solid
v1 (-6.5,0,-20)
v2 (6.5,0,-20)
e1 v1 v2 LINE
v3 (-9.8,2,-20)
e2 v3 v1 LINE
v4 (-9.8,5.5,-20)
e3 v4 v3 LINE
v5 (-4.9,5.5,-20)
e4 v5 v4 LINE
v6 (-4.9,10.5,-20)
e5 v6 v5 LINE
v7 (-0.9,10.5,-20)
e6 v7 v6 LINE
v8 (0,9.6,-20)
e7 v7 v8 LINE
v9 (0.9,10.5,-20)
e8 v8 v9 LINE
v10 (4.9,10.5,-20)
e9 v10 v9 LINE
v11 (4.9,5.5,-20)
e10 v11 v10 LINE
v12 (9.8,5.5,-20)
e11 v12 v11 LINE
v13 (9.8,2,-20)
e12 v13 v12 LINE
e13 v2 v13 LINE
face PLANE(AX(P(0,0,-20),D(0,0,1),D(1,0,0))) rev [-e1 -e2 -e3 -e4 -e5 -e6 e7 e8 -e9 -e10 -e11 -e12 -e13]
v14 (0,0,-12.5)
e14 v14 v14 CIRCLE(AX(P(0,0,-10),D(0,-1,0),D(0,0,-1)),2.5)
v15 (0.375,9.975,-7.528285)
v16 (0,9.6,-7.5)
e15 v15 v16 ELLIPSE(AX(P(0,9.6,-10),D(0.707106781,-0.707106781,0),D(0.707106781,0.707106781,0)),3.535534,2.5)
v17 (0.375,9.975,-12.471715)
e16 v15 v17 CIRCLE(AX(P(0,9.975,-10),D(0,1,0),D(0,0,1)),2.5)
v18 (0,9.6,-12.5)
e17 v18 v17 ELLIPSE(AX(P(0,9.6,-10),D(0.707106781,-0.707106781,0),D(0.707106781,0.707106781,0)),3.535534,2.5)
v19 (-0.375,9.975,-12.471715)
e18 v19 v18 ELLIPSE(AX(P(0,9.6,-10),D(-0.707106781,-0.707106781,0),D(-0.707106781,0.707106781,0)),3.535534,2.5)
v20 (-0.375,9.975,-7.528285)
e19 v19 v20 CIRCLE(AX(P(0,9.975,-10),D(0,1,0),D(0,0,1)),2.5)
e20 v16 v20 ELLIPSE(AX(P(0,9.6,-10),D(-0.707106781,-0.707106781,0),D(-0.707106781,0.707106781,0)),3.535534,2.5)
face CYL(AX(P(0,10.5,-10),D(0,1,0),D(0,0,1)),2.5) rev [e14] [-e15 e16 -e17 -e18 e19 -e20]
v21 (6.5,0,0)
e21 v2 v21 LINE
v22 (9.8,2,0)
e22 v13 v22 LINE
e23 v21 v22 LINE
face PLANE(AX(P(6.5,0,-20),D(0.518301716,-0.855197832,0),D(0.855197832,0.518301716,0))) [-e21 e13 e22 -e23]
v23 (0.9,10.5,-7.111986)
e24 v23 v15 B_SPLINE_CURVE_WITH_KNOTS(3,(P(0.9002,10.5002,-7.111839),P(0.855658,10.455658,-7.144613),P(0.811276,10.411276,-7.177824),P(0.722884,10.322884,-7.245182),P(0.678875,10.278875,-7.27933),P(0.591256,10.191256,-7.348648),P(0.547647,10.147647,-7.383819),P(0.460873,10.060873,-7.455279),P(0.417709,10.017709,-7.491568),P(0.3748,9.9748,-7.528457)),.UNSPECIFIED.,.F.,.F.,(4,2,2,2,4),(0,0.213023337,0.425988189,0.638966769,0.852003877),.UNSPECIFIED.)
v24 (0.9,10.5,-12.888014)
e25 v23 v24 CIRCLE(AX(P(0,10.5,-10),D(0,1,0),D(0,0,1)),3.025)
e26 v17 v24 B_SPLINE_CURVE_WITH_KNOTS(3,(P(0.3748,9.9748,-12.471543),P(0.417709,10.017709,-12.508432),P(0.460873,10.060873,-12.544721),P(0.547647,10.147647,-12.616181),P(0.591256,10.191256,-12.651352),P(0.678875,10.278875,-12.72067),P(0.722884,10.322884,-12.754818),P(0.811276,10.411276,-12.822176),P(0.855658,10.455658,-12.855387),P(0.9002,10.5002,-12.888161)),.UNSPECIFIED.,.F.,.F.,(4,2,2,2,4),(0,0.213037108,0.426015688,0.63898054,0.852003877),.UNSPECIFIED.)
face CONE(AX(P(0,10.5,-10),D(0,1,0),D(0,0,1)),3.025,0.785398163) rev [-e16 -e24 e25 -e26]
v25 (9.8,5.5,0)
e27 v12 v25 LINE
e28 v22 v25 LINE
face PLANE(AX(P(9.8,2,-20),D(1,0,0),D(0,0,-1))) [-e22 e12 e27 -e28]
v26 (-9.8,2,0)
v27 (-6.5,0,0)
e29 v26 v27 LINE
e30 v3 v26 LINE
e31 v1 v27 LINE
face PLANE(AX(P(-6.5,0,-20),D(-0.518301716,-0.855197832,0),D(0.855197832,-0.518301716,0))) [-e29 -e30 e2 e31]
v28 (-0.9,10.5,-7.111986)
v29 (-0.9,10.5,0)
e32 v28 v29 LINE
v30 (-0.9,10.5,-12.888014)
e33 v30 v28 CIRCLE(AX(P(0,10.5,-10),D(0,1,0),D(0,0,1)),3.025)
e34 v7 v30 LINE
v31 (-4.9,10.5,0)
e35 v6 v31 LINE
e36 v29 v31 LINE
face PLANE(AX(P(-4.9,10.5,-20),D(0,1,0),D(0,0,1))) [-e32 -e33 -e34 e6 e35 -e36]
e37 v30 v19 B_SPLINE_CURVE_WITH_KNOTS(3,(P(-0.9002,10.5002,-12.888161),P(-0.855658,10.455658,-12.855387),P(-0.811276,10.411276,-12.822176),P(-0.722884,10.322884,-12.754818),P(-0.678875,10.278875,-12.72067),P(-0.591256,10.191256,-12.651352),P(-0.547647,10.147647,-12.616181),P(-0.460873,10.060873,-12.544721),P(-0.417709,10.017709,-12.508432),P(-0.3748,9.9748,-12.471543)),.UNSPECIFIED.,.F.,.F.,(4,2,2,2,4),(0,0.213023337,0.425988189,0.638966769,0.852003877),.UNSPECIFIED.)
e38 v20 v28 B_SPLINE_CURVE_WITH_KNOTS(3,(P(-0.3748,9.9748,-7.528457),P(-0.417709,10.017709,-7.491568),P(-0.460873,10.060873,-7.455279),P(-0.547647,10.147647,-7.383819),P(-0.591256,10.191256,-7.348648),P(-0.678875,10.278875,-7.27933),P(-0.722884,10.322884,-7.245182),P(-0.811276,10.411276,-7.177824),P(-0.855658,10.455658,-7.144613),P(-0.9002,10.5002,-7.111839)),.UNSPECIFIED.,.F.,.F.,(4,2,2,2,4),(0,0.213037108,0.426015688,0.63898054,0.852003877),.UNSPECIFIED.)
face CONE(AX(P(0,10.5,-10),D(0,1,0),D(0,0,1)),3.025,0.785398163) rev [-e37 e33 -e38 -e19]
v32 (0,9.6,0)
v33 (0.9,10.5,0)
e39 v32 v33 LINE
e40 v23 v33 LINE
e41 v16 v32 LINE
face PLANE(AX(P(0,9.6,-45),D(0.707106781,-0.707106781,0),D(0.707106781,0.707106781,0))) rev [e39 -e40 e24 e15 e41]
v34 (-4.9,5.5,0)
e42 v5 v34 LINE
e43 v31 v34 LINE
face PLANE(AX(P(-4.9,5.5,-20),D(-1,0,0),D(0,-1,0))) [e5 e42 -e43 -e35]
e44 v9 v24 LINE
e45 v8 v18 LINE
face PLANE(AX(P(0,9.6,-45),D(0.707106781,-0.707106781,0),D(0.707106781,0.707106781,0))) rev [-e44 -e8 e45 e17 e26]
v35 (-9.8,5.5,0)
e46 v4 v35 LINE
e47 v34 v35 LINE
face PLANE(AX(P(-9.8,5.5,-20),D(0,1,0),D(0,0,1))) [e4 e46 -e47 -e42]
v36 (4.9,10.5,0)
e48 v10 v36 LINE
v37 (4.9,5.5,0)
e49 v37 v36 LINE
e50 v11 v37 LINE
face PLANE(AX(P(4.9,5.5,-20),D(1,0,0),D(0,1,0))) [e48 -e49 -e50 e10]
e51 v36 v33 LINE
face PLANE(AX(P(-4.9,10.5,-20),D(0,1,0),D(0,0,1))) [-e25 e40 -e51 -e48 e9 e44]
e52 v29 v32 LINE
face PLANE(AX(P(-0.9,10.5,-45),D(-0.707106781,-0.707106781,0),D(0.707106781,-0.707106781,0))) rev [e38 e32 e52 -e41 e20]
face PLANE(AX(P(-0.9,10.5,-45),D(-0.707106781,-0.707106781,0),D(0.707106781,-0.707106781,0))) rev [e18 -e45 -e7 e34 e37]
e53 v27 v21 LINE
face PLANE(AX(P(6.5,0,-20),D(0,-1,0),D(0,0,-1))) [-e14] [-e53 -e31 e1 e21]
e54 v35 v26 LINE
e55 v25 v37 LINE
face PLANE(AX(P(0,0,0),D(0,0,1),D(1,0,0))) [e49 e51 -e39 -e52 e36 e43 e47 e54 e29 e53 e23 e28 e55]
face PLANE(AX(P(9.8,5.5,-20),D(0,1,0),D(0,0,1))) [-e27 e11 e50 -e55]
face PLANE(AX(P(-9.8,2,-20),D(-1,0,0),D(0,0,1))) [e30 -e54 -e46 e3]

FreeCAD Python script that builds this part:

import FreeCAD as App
import Part
import Sketcher

doc = App.newDocument("Part")
body = doc.addObject("PartDesign::Body", "Body")

sketch1 = doc.addObject("Sketcher::SketchObject", "Sketch")
body.addObject(sketch1)
sketch1.AttachmentSupport = (doc.XY_Plane, [""])
sketch1.MapMode = "FlatFace"
sketch1.addGeometry(Part.LineSegment(App.Vector(-6.5, 0, 0), App.Vector(6.5, 0, 0)), False)
sketch1.addGeometry(Part.LineSegment(App.Vector(6.5, 0, 0), App.Vector(9.8, 2, 0)), False)
sketch1.addGeometry(Part.LineSegment(App.Vector(9.8, 2, 0), App.Vector(9.8, 5.5, 0)), False)
sketch1.addGeometry(Part.LineSegment(App.Vector(9.8, 5.5, 0), App.Vector(4.9, 5.5, 0)), False)
sketch1.addGeometry(Part.LineSegment(App.Vector(4.9, 5.5, 0), App.Vector(4.9, 10.5, 0)), False)
sketch1.addGeometry(Part.LineSegment(App.Vector(4.9, 10.5, 0), App.Vector(-4.9, 10.5, 0)), False)
sketch1.addGeometry(Part.LineSegment(App.Vector(-4.9, 10.5, 0), App.Vector(-4.9, 5.5, 0)), False)
sketch1.addGeometry(Part.LineSegment(App.Vector(-4.9, 5.5, 0), App.Vector(-9.8, 5.5, 0)), False)
sketch1.addGeometry(Part.LineSegment(App.Vector(-9.8, 5.5, 0), App.Vector(-9.8, 2, 0)), False)
sketch1.addGeometry(Part.LineSegment(App.Vector(-9.8, 2, 0), App.Vector(-6.5, 0, 0)), False)
sketch1.addConstraint(Sketcher.Constraint("Coincident", 0, 2, 1, 1))
sketch1.addConstraint(Sketcher.Constraint("Coincident", 1, 2, 2, 1))
sketch1.addConstraint(Sketcher.Constraint("Coincident", 2, 2, 3, 1))
sketch1.addConstraint(Sketcher.Constraint("Coincident", 3, 2, 4, 1))
sketch1.addConstraint(Sketcher.Constraint("Coincident", 4, 2, 5, 1))
sketch1.addConstraint(Sketcher.Constraint("Coincident", 5, 2, 6, 1))
sketch1.addConstraint(Sketcher.Constraint("Coincident", 6, 2, 7, 1))
sketch1.addConstraint(Sketcher.Constraint("Coincident", 7, 2, 8, 1))
sketch1.addConstraint(Sketcher.Constraint("Coincident", 8, 2, 9, 1))
sketch1.addConstraint(Sketcher.Constraint("Coincident", 9, 2, 0, 1))
sketch1.addConstraint(Sketcher.Constraint("Horizontal", 0))
sketch1.addConstraint(Sketcher.Constraint("Vertical", 2))
sketch1.addConstraint(Sketcher.Constraint("Horizontal", 3))
sketch1.addConstraint(Sketcher.Constraint("Vertical", 4))
sketch1.addConstraint(Sketcher.Constraint("Horizontal", 5))
sketch1.addConstraint(Sketcher.Constraint("Vertical", 6))
sketch1.addConstraint(Sketcher.Constraint("Horizontal", 7))
sketch1.addConstraint(Sketcher.Constraint("Vertical", 8))
sketch1.addConstraint(Sketcher.Constraint("Symmetric", 0, 2, 9, 2, -1, 1))
sketch1.addConstraint(Sketcher.Constraint("Symmetric", 3, 2, 6, 2, -2))
sketch1.addConstraint(Sketcher.Constraint("Symmetric", 1, 2, 8, 2, -2))
sketch1.addConstraint(Sketcher.Constraint("DistanceX", 0, 1, 0, 2, 13.0))
sketch1.addConstraint(Sketcher.Constraint("DistanceY", 4, 1, 4, 2, 5.0))
sketch1.addConstraint(Sketcher.Constraint("DistanceX", 3, 2, 3, 1, 4.9))
sketch1.addConstraint(Sketcher.Constraint("DistanceX", 5, 2, 5, 1, 9.8))
sketch1.addConstraint(Sketcher.Constraint("DistanceY", 2, 1, 2, 2, 3.5))
sketch1.addConstraint(Sketcher.Constraint("DistanceY", -1, 1, 1, 2, 2.0))
pad1 = doc.addObject("PartDesign::Pad", "Pad")
body.addObject(pad1)
pad1.Profile = sketch1
pad1.Length = 20
pad1.Reversed = True

sketch2 = doc.addObject("Sketcher::SketchObject", "Sketch001")
body.addObject(sketch2)
sketch2.AttachmentSupport = (doc.XY_Plane, [""])
sketch2.MapMode = "FlatFace"
sketch2.addGeometry(Part.LineSegment(App.Vector(-0.9, 10.5, 0), App.Vector(0, 9.6, 0)), False)
sketch2.addGeometry(Part.LineSegment(App.Vector(0, 9.6, 0), App.Vector(0.9, 10.5, 0)), False)
sketch2.addGeometry(Part.LineSegment(App.Vector(0.9, 10.5, 0), App.Vector(-0.9, 10.5, 0)), False)
sketch2.addConstraint(Sketcher.Constraint("Coincident", 0, 2, 1, 1))
sketch2.addConstraint(Sketcher.Constraint("Coincident", 1, 2, 2, 1))
sketch2.addConstraint(Sketcher.Constraint("Coincident", 2, 2, 0, 1))
sketch2.addConstraint(Sketcher.Constraint("Horizontal", 2))
sketch2.addConstraint(Sketcher.Constraint("PointOnObject", 0, 2, -2))
sketch2.addConstraint(Sketcher.Constraint("Perpendicular", 0, 1))
sketch2.addConstraint(Sketcher.Constraint("Equal", 0, 1))
sketch2.addConstraint(Sketcher.Constraint("DistanceX", 2, 2, 2, 1, 1.8))
sketch2.addConstraint(Sketcher.Constraint("DistanceY", -1, 1, 0, 2, 9.6))
pocket1 = doc.addObject("PartDesign::Pocket", "Pocket")
body.addObject(pocket1)
pocket1.Profile = sketch2
pocket1.Length = 45

sketch3 = doc.addObject("Sketcher::SketchObject", "Sketch002")
body.addObject(sketch3)
sketch3.AttachmentSupport = (doc.XZ_Plane, [""])
sketch3.MapMode = "FlatFace"
sketch3.AttachmentOffset = App.Placement(App.Vector(0, 0, -10.5), App.Rotation())
sketch3.addGeometry(Part.Circle(App.Vector(0, -10, 0), App.Vector(0, 0, 1), 2.5), False)
sketch3.addConstraint(Sketcher.Constraint("PointOnObject", 0, 3, -2))
sketch3.addConstraint(Sketcher.Constraint("Diameter", 0, 5.0))
sketch3.addConstraint(Sketcher.Constraint("DistanceY", 0, 3, -1, 1, 10.0))
doc.recompute()
hole = doc.addObject("PartDesign::Hole", "Hole")
body.addObject(hole)
hole.Profile = sketch3
hole.ThreadType = "None"
hole.Diameter = 5
hole.DepthType = "Dimension"
hole.Depth = 15
hole.DrillPoint = "Angled"
hole.DrillPointAngle = 118
hole.HoleCutType = "Countersink"
hole.HoleCutDiameter = 6.05
hole.HoleCutCountersinkAngle = 90
hole.Reversed = True

doc.recompute()
